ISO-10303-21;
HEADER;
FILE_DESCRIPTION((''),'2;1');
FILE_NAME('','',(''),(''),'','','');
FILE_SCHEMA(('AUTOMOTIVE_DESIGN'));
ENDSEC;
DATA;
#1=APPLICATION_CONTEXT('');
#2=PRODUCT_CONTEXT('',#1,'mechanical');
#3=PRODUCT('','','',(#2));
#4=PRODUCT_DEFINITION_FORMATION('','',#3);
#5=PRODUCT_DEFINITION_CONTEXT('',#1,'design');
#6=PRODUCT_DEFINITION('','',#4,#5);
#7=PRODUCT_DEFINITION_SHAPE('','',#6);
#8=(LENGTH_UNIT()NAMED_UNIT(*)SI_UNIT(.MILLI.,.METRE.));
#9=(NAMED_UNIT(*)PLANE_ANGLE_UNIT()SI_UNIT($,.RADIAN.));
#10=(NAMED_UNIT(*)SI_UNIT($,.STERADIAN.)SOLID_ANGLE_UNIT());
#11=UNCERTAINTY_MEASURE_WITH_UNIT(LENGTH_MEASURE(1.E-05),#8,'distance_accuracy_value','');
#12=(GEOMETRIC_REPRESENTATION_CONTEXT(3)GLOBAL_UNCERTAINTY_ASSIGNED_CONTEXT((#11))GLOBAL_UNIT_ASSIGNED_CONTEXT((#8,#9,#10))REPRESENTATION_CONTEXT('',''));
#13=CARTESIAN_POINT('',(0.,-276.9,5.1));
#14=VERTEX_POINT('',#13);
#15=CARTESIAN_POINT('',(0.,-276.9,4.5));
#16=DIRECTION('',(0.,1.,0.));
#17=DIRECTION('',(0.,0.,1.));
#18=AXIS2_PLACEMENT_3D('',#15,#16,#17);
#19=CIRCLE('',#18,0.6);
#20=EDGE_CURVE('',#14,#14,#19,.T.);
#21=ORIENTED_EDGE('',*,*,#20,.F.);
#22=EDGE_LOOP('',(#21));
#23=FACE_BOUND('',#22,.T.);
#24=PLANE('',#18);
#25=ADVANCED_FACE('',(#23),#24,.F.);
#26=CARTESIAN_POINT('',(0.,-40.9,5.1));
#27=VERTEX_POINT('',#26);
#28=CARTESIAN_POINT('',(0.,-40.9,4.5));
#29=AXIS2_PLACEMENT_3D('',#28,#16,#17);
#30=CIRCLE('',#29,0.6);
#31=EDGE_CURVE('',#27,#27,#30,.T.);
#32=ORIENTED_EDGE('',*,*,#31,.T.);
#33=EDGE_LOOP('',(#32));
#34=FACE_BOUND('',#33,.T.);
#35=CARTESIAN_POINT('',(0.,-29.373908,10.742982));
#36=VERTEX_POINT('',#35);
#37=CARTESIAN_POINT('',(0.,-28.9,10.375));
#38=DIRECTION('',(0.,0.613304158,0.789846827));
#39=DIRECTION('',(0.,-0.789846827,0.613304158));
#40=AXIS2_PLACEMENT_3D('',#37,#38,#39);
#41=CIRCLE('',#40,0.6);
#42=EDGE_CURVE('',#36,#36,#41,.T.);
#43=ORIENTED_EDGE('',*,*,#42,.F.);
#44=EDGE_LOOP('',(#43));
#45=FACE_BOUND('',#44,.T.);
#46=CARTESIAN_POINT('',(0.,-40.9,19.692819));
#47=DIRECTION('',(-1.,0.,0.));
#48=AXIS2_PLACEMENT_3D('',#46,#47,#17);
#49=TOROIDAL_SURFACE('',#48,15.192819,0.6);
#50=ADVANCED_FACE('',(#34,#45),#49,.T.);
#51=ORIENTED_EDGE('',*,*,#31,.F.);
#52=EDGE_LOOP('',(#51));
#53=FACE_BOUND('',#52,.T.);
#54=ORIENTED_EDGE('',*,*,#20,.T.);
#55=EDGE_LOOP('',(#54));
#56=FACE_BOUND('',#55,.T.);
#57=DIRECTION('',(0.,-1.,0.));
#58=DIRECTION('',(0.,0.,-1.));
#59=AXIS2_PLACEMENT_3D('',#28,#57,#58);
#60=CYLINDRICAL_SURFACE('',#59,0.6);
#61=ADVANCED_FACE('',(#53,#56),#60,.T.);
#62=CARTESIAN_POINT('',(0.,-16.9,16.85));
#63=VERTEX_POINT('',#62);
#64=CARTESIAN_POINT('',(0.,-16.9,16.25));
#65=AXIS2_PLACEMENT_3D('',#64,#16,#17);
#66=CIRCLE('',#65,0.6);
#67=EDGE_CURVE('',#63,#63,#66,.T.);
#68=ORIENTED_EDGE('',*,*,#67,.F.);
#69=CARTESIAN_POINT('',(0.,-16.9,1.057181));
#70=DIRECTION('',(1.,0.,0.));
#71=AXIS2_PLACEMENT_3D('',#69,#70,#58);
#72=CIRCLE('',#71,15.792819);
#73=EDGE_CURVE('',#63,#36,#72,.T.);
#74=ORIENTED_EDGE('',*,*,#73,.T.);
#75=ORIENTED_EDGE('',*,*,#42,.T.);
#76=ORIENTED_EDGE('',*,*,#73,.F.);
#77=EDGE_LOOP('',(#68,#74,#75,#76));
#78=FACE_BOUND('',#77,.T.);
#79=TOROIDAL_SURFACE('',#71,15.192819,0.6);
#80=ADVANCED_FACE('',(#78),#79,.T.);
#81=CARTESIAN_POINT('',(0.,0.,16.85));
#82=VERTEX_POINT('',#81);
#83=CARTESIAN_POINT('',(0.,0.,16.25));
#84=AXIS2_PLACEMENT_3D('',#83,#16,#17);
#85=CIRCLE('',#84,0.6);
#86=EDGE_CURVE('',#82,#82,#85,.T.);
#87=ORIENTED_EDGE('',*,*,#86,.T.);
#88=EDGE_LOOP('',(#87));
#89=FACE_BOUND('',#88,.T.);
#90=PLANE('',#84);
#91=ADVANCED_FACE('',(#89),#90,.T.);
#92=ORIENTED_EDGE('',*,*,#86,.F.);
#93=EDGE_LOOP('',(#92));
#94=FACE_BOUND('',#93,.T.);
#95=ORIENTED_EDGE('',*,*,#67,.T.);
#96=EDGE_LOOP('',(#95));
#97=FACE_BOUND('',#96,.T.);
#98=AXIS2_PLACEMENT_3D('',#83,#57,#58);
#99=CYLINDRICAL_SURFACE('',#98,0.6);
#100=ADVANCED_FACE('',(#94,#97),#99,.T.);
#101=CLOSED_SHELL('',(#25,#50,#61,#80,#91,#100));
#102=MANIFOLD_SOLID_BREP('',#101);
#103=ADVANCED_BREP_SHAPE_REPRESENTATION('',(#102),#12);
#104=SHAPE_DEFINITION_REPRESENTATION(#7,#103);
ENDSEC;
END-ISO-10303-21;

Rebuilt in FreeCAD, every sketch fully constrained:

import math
import FreeCAD as App
import Part
import Sketcher
from FreeCAD import Vector
Q = App.Units.Quantity

doc = App.newDocument("Part")
body = doc.addObject("PartDesign::Body", "Body")

# Sketch on XZ plane
sketch1 = body.newObject("Sketcher::SketchObject", "Sketch")
sketch1.AttachmentSupport = (doc.getObject("XZ_Plane"), [""])
sketch1.MapMode = "FlatFace"
sketch1.addGeometry(Part.Circle(Vector(0, 16.25, 0), Vector(0, 0, 1), 0.6), False)
sketch1.addConstraint([
    Sketcher.Constraint("PointOnObject", 0, 3, -2),
    Sketcher.Constraint("Diameter", 0, Q("1.2 mm")),
    Sketcher.Constraint("DistanceY", -1, 1, 0, 3, Q("16.25 mm")),
])

# Sketch on YZ plane
sketch2 = body.newObject("Sketcher::SketchObject", "Sketch001")
sketch2.AttachmentSupport = (doc.getObject("YZ_Plane"), [""])
sketch2.MapMode = "FlatFace"
sketch2.addGeometry([
    Part.LineSegment(Vector(0, 16.25, 0), Vector(-16.9, 16.25, 0)),
    Part.ArcOfCircle(Part.Circle(Vector(-16.9, 1.057181, 0), Vector(0, 0, 1), 15.192819), math.radians(90), math.radians(142.1712)),
    Part.ArcOfCircle(Part.Circle(Vector(-40.9, 19.692819, 0), Vector(0, 0, 1), 15.192819), math.radians(-90), math.radians(-37.8288)),
    Part.LineSegment(Vector(-40.9, 4.5, 0), Vector(-276.9, 4.5, 0)),
], False)
sketch2.addConstraint([
    Sketcher.Constraint("Tangent", 0, 2, 1, 1),
    Sketcher.Constraint("Tangent", 1, 2, 2, 2),
    Sketcher.Constraint("Tangent", 2, 1, 3, 1),
    Sketcher.Constraint("Horizontal", 0),
    Sketcher.Constraint("Horizontal", 3),
    Sketcher.Constraint("Equal", 1, 2),
    Sketcher.Constraint("PointOnObject", 0, 1, -2),
    Sketcher.Constraint("DistanceX", 3, 2, 3, 1, Q("236 mm")),
    Sketcher.Constraint("DistanceX", 0, 2, 0, 1, Q("16.9 mm")),
    Sketcher.Constraint("DistanceX", 2, 3, 1, 3, Q("24 mm")),
    Sketcher.Constraint("DistanceY", -1, 1, 2, 1, Q("4.5 mm")),
    Sketcher.Constraint("DistanceY", -1, 1, 0, 1, Q("16.25 mm")),
])
doc.recompute()

additivepipe = body.newObject("PartDesign::AdditivePipe", "AdditivePipe")
additivepipe.Profile = sketch1
additivepipe.Spine = (sketch2, ["Edge1", "Edge2", "Edge3", "Edge4"])

doc.recompute()
